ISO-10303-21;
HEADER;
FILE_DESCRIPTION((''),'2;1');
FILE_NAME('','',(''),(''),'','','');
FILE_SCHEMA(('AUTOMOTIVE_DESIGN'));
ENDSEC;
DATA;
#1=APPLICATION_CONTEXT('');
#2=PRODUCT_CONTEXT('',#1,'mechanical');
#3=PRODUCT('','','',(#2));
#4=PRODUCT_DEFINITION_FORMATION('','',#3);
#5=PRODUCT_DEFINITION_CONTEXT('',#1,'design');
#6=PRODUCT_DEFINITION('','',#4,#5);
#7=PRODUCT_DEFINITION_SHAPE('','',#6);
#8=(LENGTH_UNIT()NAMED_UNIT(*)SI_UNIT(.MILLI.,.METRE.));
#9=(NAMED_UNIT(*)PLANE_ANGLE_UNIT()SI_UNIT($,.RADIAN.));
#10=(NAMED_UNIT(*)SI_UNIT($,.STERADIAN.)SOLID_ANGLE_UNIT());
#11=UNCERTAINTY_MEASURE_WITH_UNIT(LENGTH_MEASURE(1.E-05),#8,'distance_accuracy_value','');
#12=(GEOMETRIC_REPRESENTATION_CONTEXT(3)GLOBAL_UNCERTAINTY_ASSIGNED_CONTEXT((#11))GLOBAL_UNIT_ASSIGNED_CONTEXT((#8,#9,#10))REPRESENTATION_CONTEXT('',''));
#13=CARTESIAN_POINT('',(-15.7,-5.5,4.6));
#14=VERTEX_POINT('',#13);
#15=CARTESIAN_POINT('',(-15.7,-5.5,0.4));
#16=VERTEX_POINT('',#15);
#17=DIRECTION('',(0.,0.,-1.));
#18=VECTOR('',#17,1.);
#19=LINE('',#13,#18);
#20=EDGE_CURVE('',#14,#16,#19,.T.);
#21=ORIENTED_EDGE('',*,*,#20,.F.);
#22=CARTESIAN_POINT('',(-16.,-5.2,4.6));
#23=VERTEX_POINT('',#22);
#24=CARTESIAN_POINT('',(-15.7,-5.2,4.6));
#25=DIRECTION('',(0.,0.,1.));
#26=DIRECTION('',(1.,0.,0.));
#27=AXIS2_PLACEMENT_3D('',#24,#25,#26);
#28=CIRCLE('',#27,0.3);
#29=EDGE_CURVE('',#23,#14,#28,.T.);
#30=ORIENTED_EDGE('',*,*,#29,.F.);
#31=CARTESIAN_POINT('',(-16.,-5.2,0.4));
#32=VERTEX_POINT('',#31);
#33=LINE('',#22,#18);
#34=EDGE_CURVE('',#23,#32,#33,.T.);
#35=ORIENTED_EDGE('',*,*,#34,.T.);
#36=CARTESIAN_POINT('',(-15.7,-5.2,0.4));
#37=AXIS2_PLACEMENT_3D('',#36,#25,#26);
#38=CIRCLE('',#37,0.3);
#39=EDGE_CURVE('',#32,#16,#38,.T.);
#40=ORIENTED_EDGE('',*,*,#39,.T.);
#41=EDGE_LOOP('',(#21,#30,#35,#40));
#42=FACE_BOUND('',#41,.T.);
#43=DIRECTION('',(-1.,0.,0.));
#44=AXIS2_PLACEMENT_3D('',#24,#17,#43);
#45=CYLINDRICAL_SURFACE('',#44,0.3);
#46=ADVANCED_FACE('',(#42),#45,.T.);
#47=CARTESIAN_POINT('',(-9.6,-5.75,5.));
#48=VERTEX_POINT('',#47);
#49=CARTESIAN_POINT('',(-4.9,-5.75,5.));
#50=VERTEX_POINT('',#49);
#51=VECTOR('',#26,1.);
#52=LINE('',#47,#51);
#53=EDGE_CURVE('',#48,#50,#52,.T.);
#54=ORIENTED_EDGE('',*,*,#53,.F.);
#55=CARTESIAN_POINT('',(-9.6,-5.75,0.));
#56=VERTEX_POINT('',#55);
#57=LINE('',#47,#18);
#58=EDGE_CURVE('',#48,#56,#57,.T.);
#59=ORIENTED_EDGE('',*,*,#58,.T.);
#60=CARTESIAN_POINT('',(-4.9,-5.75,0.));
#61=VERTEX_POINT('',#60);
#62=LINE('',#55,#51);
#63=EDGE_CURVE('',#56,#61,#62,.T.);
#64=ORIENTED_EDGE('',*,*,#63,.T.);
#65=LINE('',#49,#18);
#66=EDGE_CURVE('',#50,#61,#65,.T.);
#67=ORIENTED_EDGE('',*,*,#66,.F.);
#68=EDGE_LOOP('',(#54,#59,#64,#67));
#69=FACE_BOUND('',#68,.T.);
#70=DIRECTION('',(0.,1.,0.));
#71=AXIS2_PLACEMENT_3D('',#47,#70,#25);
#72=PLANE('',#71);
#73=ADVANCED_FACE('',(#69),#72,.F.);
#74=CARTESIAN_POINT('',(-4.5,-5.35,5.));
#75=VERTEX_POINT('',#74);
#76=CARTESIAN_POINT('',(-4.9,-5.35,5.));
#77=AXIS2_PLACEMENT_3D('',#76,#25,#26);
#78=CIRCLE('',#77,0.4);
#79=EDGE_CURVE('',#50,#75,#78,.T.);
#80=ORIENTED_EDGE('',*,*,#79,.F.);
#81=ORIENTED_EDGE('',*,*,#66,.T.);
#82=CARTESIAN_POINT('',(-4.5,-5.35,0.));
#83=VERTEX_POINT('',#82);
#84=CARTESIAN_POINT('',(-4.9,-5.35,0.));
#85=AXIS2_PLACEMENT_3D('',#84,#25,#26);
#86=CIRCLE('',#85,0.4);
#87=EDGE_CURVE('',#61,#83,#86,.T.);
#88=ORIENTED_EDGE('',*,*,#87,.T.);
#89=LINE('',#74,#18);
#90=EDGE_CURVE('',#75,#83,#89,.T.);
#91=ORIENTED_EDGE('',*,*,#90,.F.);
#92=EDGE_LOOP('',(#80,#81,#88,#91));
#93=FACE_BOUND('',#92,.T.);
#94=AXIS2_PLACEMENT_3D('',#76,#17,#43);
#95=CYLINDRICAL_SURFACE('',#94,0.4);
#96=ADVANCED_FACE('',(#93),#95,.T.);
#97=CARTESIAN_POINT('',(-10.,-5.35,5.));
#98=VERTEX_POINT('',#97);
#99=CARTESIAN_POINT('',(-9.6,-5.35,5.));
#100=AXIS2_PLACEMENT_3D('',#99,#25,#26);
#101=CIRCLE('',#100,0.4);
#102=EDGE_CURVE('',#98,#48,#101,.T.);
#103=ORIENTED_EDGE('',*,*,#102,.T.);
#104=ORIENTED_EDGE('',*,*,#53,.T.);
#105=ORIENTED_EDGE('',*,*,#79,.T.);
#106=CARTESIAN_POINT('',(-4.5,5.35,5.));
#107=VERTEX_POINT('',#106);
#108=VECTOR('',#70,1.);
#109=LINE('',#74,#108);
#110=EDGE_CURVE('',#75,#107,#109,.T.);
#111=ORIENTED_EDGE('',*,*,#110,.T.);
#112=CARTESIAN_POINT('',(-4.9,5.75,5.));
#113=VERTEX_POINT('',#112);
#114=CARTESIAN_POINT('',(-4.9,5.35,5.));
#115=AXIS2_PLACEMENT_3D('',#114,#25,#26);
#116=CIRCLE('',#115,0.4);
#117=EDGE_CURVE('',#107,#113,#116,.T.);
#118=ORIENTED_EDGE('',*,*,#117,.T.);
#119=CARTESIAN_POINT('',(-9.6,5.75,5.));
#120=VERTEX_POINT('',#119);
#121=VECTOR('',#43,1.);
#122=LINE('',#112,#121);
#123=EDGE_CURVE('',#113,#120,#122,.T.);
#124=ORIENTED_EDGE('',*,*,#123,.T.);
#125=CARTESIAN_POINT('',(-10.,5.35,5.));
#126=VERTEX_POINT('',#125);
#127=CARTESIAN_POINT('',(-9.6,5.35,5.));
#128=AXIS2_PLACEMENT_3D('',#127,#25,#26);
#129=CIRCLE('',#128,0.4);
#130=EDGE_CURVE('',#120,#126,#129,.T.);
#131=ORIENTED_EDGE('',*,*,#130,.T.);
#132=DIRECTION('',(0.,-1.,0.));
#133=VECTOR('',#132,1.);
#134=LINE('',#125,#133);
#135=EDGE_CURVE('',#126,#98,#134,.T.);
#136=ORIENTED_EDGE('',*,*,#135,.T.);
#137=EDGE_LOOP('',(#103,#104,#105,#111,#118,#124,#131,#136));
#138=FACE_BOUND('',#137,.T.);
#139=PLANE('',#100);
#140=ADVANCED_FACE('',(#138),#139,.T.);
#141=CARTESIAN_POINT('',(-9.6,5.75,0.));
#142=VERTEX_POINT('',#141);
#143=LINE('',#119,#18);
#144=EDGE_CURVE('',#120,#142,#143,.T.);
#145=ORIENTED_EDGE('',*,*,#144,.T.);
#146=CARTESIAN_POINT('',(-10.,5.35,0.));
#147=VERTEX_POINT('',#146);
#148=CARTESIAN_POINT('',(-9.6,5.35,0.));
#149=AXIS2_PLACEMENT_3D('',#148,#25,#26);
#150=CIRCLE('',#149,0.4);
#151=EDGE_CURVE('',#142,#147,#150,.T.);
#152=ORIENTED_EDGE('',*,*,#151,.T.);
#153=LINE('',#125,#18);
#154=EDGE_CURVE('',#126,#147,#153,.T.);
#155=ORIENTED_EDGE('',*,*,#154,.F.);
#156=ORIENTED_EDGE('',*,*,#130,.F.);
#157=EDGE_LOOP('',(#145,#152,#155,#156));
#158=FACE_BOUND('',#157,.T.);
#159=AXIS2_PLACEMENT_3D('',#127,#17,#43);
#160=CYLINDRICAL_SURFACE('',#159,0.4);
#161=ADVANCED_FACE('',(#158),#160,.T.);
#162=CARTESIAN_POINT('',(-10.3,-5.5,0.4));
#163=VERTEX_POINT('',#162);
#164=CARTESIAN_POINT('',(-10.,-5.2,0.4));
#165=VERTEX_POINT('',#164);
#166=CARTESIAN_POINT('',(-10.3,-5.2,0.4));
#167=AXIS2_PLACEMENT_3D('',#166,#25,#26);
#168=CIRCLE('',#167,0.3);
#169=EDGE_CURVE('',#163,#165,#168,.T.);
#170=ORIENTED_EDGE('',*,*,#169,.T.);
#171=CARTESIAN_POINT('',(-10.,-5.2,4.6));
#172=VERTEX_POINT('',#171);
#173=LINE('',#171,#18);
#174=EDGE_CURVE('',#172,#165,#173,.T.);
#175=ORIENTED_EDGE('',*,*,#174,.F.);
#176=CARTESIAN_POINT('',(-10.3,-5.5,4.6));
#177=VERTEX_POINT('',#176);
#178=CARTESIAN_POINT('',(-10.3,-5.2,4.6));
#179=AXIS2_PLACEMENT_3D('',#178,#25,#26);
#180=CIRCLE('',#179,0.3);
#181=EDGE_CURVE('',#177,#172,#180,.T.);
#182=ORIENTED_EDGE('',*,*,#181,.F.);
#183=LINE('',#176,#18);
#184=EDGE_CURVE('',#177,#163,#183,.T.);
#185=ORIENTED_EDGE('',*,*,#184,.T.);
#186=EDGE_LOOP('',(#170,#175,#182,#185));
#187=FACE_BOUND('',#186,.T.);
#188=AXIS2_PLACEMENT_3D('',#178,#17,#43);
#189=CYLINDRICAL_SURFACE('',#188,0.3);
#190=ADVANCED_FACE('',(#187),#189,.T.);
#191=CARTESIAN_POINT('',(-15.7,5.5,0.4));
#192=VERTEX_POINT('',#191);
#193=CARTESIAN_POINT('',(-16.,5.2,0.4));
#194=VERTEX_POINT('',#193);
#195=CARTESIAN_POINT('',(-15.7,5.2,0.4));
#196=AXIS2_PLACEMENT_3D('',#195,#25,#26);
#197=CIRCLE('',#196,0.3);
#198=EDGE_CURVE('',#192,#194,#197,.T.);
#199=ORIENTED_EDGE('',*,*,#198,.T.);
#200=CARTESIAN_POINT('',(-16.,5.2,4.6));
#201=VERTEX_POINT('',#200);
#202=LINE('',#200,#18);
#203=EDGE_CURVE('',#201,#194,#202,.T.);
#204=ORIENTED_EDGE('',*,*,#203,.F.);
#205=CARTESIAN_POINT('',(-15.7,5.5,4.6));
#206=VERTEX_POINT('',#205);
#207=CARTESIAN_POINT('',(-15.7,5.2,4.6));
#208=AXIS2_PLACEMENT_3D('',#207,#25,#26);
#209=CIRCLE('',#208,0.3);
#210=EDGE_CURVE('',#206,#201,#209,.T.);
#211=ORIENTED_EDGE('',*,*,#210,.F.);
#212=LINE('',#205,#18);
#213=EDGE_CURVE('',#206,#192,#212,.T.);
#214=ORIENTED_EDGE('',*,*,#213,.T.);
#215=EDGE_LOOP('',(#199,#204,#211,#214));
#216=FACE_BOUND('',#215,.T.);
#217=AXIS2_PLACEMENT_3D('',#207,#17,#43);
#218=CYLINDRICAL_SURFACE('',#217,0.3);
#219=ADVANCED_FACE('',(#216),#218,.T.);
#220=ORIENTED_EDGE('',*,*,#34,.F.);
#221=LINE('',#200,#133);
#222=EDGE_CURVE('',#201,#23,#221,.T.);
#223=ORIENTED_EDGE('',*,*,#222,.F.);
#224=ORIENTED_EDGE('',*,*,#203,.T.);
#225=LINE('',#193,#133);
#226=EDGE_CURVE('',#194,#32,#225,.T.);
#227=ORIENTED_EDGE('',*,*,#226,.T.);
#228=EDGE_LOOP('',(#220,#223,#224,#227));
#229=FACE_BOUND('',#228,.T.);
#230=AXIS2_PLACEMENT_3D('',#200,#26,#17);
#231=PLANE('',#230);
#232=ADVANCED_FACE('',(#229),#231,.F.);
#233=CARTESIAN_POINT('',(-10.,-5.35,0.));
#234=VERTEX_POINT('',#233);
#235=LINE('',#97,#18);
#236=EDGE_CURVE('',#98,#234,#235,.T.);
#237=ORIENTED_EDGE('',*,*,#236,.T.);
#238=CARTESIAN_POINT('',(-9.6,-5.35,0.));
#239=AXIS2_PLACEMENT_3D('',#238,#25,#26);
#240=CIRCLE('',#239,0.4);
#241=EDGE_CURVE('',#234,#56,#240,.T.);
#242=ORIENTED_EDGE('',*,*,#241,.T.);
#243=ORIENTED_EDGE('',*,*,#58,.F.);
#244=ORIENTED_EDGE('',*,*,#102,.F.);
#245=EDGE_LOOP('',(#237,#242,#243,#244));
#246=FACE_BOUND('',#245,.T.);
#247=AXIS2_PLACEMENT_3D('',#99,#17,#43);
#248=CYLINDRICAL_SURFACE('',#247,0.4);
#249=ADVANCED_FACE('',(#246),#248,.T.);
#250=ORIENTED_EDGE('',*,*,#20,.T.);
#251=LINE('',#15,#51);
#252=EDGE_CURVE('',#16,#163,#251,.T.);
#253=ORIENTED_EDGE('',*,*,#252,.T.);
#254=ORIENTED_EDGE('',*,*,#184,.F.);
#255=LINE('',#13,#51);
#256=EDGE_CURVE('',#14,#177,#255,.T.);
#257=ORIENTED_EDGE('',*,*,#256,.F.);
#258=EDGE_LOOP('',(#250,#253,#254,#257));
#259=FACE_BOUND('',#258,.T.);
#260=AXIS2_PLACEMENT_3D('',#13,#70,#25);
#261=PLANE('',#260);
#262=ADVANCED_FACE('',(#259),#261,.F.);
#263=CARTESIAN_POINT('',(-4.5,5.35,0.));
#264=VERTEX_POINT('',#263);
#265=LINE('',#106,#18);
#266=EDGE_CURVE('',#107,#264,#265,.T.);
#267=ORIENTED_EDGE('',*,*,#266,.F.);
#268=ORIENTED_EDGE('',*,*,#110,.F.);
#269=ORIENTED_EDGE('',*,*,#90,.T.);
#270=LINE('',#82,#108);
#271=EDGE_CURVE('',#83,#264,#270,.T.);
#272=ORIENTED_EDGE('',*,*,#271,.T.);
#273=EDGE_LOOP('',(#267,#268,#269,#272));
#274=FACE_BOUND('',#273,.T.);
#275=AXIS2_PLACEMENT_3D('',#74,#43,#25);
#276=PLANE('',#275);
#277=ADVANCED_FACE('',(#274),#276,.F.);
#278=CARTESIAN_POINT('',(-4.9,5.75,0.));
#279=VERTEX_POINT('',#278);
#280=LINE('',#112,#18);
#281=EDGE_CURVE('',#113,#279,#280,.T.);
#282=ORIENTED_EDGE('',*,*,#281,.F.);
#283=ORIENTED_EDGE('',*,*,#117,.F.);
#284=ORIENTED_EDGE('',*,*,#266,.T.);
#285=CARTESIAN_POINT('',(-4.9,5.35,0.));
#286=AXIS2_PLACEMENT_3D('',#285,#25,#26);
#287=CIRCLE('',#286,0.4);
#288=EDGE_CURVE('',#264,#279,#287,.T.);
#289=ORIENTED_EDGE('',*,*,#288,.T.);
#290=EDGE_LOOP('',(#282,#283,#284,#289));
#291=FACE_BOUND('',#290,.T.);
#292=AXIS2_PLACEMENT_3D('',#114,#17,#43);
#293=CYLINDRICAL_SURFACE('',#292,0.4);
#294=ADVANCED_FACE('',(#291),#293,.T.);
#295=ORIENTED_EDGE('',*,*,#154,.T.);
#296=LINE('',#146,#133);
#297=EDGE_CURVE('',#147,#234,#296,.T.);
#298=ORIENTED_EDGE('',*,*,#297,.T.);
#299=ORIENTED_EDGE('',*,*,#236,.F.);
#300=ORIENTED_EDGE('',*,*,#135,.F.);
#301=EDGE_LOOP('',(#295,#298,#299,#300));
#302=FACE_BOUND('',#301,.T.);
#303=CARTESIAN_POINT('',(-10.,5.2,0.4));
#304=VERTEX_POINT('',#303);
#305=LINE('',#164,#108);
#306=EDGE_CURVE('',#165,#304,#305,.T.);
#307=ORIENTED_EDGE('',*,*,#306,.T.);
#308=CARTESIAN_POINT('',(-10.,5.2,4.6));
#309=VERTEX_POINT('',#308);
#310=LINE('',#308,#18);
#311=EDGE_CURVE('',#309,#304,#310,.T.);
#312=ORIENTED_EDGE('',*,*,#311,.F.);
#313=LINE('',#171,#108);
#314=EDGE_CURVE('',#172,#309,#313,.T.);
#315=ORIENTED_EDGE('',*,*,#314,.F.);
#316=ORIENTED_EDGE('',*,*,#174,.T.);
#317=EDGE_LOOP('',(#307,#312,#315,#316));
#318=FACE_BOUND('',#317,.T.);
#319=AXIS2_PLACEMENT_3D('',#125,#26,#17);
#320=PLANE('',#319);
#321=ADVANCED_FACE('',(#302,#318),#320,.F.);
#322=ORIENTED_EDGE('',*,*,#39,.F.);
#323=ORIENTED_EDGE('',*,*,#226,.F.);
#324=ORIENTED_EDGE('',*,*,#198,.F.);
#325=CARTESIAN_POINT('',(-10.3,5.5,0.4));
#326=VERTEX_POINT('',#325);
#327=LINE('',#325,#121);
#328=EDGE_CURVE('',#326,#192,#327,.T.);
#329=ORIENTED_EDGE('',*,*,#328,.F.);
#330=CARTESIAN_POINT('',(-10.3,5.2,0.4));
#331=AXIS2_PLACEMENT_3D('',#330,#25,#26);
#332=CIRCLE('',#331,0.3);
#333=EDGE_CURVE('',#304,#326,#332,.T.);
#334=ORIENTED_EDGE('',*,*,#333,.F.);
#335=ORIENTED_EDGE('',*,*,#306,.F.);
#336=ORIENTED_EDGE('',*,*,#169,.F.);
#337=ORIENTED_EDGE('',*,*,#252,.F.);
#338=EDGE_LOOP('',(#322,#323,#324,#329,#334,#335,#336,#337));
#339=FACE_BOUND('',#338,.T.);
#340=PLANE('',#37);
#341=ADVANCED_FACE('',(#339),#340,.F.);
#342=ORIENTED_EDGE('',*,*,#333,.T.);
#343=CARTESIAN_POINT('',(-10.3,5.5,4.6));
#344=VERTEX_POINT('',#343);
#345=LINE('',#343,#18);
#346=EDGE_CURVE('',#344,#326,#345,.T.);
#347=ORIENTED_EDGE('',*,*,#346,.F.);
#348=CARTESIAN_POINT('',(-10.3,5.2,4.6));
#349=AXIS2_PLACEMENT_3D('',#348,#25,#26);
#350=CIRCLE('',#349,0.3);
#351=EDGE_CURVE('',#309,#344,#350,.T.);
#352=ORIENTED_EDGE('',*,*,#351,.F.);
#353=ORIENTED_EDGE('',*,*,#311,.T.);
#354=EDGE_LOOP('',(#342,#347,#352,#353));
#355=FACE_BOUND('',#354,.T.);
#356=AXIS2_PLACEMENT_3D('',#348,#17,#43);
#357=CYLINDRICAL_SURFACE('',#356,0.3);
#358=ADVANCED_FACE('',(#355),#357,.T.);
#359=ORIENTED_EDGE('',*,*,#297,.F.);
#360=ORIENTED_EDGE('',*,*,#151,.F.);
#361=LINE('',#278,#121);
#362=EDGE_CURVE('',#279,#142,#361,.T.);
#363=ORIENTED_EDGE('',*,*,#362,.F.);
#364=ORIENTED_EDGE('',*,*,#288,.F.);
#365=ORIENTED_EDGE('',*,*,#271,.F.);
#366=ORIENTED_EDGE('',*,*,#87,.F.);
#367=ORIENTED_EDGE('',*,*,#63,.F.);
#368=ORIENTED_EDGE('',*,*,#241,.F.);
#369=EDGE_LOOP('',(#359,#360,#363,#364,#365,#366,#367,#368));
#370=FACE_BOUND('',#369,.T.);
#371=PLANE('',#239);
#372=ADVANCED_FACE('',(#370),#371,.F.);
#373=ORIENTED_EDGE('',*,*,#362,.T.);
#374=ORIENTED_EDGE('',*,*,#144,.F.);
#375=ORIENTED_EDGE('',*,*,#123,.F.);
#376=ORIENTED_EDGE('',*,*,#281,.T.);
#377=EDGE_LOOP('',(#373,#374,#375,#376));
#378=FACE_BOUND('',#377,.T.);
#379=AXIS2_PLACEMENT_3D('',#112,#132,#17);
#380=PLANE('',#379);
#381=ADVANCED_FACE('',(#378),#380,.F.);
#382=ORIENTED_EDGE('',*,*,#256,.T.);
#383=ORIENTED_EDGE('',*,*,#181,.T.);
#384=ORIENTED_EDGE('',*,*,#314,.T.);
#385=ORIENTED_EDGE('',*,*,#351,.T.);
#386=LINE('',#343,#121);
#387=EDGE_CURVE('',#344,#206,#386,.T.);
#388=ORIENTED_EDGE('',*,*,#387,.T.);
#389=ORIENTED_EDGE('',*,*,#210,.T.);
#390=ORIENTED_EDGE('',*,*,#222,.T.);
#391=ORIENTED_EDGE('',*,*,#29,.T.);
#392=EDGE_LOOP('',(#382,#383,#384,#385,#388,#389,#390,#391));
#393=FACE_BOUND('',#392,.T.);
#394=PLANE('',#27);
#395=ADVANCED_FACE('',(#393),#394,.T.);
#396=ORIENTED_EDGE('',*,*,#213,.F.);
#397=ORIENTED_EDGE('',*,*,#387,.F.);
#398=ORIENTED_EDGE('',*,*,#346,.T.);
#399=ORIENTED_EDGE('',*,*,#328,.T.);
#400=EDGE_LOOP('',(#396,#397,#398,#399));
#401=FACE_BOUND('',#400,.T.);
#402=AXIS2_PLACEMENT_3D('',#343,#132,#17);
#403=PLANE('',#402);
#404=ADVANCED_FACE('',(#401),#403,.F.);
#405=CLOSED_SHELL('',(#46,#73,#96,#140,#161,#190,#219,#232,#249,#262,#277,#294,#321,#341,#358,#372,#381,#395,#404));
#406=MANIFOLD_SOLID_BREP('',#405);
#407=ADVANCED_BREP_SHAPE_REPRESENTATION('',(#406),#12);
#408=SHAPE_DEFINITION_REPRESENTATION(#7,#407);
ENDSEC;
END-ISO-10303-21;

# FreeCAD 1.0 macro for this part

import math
import FreeCAD as App
import Part
import Sketcher

V = App.Vector
Q = App.Units.Quantity

doc = App.newDocument("Part")
body = doc.addObject("PartDesign::Body", "Body")

sketch1 = body.newObject("Sketcher::SketchObject", "Sketch")
sketch1.AttachmentSupport = (doc.getObject("XY_Plane"), [""])
sketch1.MapMode = "FlatFace"
sketch1.addGeometry([
    Part.LineSegment(V(-9.6, -5.75, 0), V(-4.9, -5.75, 0)),
    Part.ArcOfCircle(Part.Circle(V(-4.9, -5.35, 0), V(0, 0, 1), 0.4), math.radians(-90), math.radians(0)),
    Part.LineSegment(V(-4.5, -5.35, 0), V(-4.5, 5.35, 0)),
    Part.ArcOfCircle(Part.Circle(V(-4.9, 5.35, 0), V(0, 0, 1), 0.4), math.radians(0), math.radians(90)),
    Part.LineSegment(V(-4.9, 5.75, 0), V(-9.6, 5.75, 0)),
    Part.ArcOfCircle(Part.Circle(V(-9.6, 5.35, 0), V(0, 0, 1), 0.4), math.radians(90), math.radians(180)),
    Part.LineSegment(V(-10, 5.35, 0), V(-10, -5.35, 0)),
    Part.ArcOfCircle(Part.Circle(V(-9.6, -5.35, 0), V(0, 0, 1), 0.4), math.radians(-180), math.radians(-90)),
], False)
sketch1.addConstraint([
    Sketcher.Constraint("Tangent", 0, 2, 1, 1),
    Sketcher.Constraint("Tangent", 1, 2, 2, 1),
    Sketcher.Constraint("Tangent", 2, 2, 3, 1),
    Sketcher.Constraint("Tangent", 3, 2, 4, 1),
    Sketcher.Constraint("Tangent", 4, 2, 5, 1),
    Sketcher.Constraint("Tangent", 5, 2, 6, 1),
    Sketcher.Constraint("Tangent", 6, 2, 7, 1),
    Sketcher.Constraint("Tangent", 7, 2, 0, 1),
    Sketcher.Constraint("Horizontal", 0),
    Sketcher.Constraint("Vertical", 2),
    Sketcher.Constraint("Horizontal", 4),
    Sketcher.Constraint("Vertical", 6),
    Sketcher.Constraint("Equal", 1, 3),
    Sketcher.Constraint("Equal", 3, 5),
    Sketcher.Constraint("Equal", 5, 7),
    Sketcher.Constraint("Radius", 1, Q("0.4 mm")),
    Sketcher.Constraint("DistanceX", 0, 1, 0, 2, Q("4.7 mm")),
    Sketcher.Constraint("DistanceY", 2, 1, 2, 2, Q("10.7 mm")),
    Sketcher.Constraint("DistanceX", 5, 2, -1, 1, Q("10 mm")),
    Sketcher.Constraint("DistanceY", 1, 3, -1, 1, Q("5.35 mm")),
])
pad1 = body.newObject("PartDesign::Pad", "Pad")
pad1.Profile = sketch1
pad1.Length = 5

sketch2 = body.newObject("Sketcher::SketchObject", "Sketch001")
sketch2.AttachmentSupport = (doc.getObject("XY_Plane"), [""])
sketch2.MapMode = "FlatFace"
sketch2.AttachmentOffset = App.Placement(V(0, 0, 0.4), App.Rotation())
sketch2.addGeometry([
    Part.LineSegment(V(-15.7, -5.5, 0), V(-10.3, -5.5, 0)),
    Part.ArcOfCircle(Part.Circle(V(-10.3, -5.2, 0), V(0, 0, 1), 0.3), math.radians(-90), math.radians(0)),
    Part.LineSegment(V(-10, -5.2, 0), V(-10, 5.2, 0)),
    Part.ArcOfCircle(Part.Circle(V(-10.3, 5.2, 0), V(0, 0, 1), 0.3), math.radians(0), math.radians(90)),
    Part.LineSegment(V(-10.3, 5.5, 0), V(-15.7, 5.5, 0)),
    Part.ArcOfCircle(Part.Circle(V(-15.7, 5.2, 0), V(0, 0, 1), 0.3), math.radians(90), math.radians(180)),
    Part.LineSegment(V(-16, 5.2, 0), V(-16, -5.2, 0)),
    Part.ArcOfCircle(Part.Circle(V(-15.7, -5.2, 0), V(0, 0, 1), 0.3), math.radians(-180), math.radians(-90)),
], False)
sketch2.addConstraint([
    Sketcher.Constraint("Tangent", 0, 2, 1, 1),
    Sketcher.Constraint("Tangent", 1, 2, 2, 1),
    Sketcher.Constraint("Tangent", 2, 2, 3, 1),
    Sketcher.Constraint("Tangent", 3, 2, 4, 1),
    Sketcher.Constraint("Tangent", 4, 2, 5, 1),
    Sketcher.Constraint("Tangent", 5, 2, 6, 1),
    Sketcher.Constraint("Tangent", 6, 2, 7, 1),
    Sketcher.Constraint("Tangent", 7, 2, 0, 1),
    Sketcher.Constraint("Horizontal", 0),
    Sketcher.Constraint("Vertical", 2),
    Sketcher.Constraint("Horizontal", 4),
    Sketcher.Constraint("Vertical", 6),
    Sketcher.Constraint("Equal", 1, 3),
    Sketcher.Constraint("Equal", 3, 5),
    Sketcher.Constraint("Equal", 5, 7),
    Sketcher.Constraint("Radius", 1, Q("0.3 mm")),
    Sketcher.Constraint("DistanceX", 0, 1, 0, 2, Q("5.4 mm")),
    Sketcher.Constraint("DistanceY", 2, 1, 2, 2, Q("10.4 mm")),
    Sketcher.Constraint("DistanceX", 1, 2, -1, 1, Q("10 mm")),
    Sketcher.Constraint("DistanceY", 1, 3, -1, 1, Q("5.2 mm")),
])
pad2 = body.newObject("PartDesign::Pad", "Pad001")
pad2.Profile = sketch2
pad2.Length = 4.2

doc.recompute()
